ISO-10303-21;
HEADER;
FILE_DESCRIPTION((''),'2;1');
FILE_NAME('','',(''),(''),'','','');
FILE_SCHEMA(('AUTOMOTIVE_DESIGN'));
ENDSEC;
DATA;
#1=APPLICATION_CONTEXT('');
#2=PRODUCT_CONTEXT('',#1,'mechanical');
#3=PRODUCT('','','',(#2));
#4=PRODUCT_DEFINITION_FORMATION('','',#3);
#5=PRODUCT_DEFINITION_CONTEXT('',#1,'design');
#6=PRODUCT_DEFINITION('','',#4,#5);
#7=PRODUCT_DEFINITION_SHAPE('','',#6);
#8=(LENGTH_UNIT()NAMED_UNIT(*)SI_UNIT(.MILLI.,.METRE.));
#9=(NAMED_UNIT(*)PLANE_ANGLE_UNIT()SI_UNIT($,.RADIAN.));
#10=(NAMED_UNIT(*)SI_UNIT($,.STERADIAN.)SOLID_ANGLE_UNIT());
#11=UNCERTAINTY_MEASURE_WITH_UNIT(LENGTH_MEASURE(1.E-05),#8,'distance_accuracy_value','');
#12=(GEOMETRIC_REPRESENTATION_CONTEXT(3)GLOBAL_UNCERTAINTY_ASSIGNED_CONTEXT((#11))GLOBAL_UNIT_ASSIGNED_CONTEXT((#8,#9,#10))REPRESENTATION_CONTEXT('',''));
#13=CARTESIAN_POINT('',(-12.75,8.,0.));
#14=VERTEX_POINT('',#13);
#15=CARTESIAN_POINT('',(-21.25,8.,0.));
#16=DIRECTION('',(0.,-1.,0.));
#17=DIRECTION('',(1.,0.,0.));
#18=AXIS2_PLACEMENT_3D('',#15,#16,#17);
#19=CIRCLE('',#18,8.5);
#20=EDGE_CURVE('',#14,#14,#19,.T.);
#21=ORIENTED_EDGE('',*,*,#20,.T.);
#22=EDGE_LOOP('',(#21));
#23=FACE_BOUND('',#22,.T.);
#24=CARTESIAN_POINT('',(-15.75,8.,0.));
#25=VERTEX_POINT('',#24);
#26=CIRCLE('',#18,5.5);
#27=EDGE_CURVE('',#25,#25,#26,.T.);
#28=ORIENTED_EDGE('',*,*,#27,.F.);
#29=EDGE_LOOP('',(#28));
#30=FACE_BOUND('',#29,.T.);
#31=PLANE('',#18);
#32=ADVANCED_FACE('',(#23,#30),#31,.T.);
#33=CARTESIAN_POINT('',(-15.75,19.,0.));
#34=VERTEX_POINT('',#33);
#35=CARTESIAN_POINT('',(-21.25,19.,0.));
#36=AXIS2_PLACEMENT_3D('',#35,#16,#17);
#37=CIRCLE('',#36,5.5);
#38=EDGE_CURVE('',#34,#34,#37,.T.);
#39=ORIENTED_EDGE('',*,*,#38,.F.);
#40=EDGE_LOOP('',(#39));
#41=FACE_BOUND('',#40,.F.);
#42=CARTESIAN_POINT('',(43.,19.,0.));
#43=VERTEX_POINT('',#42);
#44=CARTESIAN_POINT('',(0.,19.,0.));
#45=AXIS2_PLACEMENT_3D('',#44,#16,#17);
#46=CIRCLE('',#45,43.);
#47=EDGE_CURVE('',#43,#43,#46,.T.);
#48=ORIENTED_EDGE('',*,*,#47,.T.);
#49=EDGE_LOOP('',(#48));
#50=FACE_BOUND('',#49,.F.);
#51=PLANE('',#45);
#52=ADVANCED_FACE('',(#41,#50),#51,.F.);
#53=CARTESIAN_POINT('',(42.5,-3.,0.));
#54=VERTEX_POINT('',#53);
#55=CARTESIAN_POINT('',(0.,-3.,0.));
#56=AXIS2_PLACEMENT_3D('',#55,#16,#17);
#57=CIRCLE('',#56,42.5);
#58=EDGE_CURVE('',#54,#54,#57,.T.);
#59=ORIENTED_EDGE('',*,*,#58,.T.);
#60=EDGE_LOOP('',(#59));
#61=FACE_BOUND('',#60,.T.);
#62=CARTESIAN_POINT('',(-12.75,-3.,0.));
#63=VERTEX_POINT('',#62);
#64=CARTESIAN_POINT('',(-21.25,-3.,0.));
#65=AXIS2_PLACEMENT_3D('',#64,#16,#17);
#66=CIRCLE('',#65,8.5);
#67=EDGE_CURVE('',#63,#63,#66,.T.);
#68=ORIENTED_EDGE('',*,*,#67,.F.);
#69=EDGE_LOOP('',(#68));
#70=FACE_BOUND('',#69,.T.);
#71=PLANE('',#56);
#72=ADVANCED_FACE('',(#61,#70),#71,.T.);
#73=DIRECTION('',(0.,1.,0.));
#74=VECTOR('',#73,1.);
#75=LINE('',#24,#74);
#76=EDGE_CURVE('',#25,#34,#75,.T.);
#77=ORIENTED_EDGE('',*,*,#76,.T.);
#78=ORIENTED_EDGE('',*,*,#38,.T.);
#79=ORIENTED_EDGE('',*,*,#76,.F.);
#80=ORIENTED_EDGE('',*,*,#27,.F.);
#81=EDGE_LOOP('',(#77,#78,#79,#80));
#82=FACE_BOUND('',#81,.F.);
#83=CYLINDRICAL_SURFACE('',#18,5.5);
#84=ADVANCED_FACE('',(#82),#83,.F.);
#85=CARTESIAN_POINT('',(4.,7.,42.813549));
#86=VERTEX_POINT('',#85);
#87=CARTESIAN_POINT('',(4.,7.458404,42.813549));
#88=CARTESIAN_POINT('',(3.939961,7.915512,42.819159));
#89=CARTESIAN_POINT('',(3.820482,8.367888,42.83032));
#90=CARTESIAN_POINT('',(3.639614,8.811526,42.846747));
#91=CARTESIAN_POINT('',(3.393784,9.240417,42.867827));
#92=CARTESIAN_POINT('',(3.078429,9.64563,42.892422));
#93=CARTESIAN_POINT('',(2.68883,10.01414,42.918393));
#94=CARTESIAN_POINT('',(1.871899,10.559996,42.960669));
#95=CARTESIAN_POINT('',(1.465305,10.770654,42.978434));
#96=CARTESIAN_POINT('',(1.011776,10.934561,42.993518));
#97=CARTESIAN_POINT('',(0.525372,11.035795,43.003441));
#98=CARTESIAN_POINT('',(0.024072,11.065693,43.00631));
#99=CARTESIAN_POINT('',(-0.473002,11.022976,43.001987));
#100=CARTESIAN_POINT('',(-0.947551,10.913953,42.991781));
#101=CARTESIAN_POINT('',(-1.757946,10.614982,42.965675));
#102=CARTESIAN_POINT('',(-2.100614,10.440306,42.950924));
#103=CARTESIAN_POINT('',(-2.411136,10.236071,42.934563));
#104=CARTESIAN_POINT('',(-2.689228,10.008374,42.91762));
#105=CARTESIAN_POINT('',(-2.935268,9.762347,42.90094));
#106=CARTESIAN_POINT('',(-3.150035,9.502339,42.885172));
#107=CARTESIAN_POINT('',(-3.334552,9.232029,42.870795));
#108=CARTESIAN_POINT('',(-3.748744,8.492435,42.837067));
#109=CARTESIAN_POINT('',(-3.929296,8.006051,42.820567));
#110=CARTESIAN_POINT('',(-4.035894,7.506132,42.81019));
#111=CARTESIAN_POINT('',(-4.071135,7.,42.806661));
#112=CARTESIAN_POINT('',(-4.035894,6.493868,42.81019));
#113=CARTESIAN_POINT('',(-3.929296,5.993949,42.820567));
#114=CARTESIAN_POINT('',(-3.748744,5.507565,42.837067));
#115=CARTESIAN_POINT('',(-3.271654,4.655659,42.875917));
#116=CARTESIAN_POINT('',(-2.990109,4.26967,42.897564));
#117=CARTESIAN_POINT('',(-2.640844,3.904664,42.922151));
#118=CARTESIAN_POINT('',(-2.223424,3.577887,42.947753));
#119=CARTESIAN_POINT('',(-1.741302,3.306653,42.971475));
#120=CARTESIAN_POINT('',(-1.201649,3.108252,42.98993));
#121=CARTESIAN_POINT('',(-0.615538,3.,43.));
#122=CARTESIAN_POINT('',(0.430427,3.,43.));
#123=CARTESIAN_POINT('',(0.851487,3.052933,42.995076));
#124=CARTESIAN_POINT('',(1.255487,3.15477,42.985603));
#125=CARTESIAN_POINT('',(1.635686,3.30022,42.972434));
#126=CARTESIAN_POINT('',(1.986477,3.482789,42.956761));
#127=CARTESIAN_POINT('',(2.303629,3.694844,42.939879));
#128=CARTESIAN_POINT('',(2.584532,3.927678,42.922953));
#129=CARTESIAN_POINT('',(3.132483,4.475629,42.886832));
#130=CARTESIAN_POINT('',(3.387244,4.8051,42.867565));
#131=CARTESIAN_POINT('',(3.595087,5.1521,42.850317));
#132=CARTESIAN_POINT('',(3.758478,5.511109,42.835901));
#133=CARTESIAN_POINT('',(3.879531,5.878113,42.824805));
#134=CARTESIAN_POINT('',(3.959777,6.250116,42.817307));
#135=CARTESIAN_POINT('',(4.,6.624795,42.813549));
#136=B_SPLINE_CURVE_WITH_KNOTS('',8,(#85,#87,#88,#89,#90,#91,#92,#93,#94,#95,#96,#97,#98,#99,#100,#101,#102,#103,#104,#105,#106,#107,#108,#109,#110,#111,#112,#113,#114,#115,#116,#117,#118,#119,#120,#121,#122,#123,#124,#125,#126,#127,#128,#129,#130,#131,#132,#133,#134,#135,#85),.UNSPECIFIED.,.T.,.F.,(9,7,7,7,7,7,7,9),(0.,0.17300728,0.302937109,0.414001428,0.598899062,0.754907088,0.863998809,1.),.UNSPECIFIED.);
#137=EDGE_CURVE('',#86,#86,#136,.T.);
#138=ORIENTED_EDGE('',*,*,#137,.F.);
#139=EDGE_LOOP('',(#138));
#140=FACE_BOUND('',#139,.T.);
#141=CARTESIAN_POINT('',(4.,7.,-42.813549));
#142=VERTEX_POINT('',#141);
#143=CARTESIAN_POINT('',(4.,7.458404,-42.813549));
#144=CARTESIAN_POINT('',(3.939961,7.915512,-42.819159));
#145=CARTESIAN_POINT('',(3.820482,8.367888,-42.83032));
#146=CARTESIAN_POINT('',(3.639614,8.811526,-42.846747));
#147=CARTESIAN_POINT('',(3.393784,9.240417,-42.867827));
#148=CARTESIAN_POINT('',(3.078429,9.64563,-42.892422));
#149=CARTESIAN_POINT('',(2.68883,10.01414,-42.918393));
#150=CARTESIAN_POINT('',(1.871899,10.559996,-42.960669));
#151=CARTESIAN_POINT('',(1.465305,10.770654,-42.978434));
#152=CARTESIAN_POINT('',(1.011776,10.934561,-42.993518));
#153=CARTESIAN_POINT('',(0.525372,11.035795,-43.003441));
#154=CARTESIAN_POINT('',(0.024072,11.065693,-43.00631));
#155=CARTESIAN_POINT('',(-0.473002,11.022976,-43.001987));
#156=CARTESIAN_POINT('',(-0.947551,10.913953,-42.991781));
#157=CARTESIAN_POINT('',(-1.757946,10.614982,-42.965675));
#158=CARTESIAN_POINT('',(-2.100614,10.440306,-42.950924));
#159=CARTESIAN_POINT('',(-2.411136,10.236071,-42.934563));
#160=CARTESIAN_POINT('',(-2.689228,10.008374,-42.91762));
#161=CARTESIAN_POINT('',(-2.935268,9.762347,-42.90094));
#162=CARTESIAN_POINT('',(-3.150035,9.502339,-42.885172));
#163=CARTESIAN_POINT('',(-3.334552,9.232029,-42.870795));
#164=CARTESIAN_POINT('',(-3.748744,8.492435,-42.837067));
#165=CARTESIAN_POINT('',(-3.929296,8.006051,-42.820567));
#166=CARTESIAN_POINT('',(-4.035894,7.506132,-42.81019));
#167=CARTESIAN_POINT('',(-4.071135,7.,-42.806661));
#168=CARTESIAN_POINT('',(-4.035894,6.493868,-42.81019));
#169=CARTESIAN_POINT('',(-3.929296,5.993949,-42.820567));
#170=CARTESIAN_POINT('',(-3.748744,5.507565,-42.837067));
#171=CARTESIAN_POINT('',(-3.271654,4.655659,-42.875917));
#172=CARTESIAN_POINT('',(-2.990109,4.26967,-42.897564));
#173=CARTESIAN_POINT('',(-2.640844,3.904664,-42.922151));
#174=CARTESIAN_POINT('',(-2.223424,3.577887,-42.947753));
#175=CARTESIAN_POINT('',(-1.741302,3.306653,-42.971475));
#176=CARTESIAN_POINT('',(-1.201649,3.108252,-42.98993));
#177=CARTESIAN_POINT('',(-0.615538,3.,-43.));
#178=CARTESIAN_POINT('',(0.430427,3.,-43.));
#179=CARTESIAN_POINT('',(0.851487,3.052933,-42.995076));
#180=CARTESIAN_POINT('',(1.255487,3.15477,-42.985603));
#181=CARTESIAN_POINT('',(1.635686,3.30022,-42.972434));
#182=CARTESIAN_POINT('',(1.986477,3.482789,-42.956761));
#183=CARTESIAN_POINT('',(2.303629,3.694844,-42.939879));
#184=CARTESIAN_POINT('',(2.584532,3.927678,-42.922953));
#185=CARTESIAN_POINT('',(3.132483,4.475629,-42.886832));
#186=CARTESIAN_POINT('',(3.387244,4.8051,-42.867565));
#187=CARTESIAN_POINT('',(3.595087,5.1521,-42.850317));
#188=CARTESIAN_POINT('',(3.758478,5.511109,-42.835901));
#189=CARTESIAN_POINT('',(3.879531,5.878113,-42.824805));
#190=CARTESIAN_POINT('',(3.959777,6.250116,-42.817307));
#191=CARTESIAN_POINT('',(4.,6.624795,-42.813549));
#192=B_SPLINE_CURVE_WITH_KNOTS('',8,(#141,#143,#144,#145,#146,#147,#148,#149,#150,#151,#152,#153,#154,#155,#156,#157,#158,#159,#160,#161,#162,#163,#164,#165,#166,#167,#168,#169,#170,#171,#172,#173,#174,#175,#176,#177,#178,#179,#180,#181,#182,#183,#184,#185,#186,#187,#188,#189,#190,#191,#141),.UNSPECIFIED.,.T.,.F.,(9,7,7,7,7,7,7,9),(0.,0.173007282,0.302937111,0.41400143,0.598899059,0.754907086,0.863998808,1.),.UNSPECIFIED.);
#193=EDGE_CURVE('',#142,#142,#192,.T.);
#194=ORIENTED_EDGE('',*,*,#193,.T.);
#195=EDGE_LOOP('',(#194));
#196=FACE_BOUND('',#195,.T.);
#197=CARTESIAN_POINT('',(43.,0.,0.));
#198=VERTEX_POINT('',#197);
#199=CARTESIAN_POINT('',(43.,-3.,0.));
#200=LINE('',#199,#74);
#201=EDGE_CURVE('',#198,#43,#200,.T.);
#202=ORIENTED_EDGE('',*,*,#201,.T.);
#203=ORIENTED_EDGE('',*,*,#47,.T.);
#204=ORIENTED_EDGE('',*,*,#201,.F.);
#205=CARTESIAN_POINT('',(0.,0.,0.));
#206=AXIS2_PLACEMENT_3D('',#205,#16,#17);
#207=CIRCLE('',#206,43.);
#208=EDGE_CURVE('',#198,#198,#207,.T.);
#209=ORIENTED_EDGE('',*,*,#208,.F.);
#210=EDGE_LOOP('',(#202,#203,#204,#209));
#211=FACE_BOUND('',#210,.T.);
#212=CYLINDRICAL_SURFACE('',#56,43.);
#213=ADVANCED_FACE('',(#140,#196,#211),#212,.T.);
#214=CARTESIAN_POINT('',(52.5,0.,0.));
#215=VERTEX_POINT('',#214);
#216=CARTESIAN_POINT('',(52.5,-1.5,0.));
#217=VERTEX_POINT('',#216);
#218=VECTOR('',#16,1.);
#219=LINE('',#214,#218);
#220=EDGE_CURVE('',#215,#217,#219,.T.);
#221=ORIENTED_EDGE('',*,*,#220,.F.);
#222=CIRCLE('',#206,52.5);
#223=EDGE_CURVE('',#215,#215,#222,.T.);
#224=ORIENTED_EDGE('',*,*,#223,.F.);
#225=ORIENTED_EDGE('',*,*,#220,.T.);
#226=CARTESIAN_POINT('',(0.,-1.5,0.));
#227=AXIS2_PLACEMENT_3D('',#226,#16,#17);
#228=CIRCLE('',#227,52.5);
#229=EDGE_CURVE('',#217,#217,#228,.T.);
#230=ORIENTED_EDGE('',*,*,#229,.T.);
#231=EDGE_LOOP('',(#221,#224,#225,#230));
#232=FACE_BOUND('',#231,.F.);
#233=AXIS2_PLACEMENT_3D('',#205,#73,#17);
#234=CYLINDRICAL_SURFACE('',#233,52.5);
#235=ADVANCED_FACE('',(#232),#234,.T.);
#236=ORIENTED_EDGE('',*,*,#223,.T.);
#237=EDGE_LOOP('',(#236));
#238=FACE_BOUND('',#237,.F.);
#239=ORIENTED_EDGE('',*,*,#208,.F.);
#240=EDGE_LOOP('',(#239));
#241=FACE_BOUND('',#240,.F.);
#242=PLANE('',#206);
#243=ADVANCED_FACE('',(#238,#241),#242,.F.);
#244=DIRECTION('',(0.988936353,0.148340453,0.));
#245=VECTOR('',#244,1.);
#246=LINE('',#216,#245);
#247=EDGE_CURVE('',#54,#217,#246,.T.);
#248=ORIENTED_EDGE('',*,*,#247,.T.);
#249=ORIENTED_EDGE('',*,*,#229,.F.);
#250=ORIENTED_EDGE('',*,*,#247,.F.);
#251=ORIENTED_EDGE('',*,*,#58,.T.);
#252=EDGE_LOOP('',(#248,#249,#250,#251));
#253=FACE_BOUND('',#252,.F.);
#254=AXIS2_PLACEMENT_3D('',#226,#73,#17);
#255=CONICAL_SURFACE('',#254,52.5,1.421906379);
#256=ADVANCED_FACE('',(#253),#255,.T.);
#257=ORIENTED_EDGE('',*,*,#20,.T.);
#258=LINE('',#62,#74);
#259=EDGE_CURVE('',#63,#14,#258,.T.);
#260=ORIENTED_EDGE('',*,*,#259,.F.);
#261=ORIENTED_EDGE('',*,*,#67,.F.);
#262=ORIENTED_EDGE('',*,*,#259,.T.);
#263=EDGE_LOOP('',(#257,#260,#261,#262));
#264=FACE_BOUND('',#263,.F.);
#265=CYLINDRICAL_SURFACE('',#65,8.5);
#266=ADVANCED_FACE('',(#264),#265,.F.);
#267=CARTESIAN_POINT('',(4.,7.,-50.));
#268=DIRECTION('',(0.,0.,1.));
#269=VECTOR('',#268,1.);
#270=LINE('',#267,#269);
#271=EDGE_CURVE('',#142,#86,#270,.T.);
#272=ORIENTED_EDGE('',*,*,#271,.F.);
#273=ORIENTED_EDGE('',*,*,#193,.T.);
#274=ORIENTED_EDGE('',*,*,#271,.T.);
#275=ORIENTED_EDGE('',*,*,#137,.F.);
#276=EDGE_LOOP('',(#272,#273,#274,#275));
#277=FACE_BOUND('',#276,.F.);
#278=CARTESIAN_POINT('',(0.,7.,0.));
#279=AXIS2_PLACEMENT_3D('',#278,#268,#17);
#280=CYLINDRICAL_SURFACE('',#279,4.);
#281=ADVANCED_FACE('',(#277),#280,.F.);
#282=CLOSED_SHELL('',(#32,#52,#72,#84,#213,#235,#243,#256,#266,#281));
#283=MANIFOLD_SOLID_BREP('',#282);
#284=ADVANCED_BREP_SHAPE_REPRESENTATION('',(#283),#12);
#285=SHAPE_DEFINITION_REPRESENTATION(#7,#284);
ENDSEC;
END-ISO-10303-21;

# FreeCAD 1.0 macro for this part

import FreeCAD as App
import Part
import Sketcher

V = App.Vector


def edges_at(feature, points):
    """Names of the edges that pass closest to the given points."""
    edges = feature.Shape.Edges
    near = lambda p: min(range(len(edges)), key=lambda i: edges[i].distToShape(Part.Vertex(*p))[0])
    return sorted({f"Edge{near(p) + 1}" for p in points})

doc = App.newDocument("Part")
params = doc.addObject("Spreadsheet::Sheet", "Params")
for row, (alias, value) in enumerate([
    ("sketch1_diameter", "105 mm"),
    ("pad1_length", "3 mm"),
    ("sketch2_diameter", "86 mm"),
    ("pad2_length", "22 mm"),
    ("sketch3_diameter", "17 mm"),
    ("pocket1_length", "11 mm"),
    ("sketch4_diameter", "11 mm"),
    ("chamfer_size", "10 mm"),
    ("chamfer_size2", "1.5 mm"),
    ("sketch5_diameter", "8 mm"),
    ("pocket3_length", "100 mm"),
], start=1):
    params.set(f"A{row}", alias)
    params.set(f"B{row}", "=" + value)
    params.setAlias(f"B{row}", alias)

body = doc.addObject("PartDesign::Body", "Body")

sketch1 = body.newObject("Sketcher::SketchObject", "Sketch")
sketch1.AttachmentSupport = (doc.getObject("XZ_Plane"), [""])
sketch1.MapMode = "FlatFace"
sketch1.addGeometry(Part.Circle(V(0, 0, 0), V(0, 0, 1), 52.5), False)
sketch1.addConstraint([
    Sketcher.Constraint("Coincident", 0, 3, -1, 1),
    Sketcher.Constraint("Diameter", 0, 105.0),
])
sketch1.setExpression("Constraints[1]", "Params.sketch1_diameter")
pad1 = body.newObject("PartDesign::Pad", "Pad")
pad1.Profile = sketch1
pad1.setExpression("Length", "Params.pad1_length")

sketch2 = body.newObject("Sketcher::SketchObject", "Sketch001")
sketch2.AttachmentSupport = (doc.getObject("XZ_Plane"), [""])
sketch2.MapMode = "FlatFace"
sketch2.AttachmentOffset = App.Placement(V(0, 0, 3), App.Rotation())
sketch2.addGeometry(Part.Circle(V(0, 0, 0), V(0, 0, 1), 43), False)
sketch2.addConstraint([
    Sketcher.Constraint("Coincident", 0, 3, -1, 1),
    Sketcher.Constraint("Diameter", 0, 86.0),
])
sketch2.setExpression("Constraints[1]", "Params.sketch2_diameter")
pad2 = body.newObject("PartDesign::Pad", "Pad001")
pad2.Profile = sketch2
pad2.setExpression("Length", "Params.pad2_length")
pad2.Reversed = True

sketch3 = body.newObject("Sketcher::SketchObject", "Sketch002")
sketch3.AttachmentSupport = (doc.getObject("XZ_Plane"), [""])
sketch3.MapMode = "FlatFace"
sketch3.AttachmentOffset = App.Placement(V(0, 0, 3), App.Rotation())
sketch3.addGeometry(Part.Circle(V(-21.25, 0, 0), V(0, 0, 1), 8.5), False)
sketch3.addConstraint([
    Sketcher.Constraint("PointOnObject", 0, 3, -1),
    Sketcher.Constraint("Diameter", 0, 17.0),
    Sketcher.Constraint("DistanceX", 0, 3, -1, 1, 21.25),
])
sketch3.setExpression("Constraints[1]", "Params.sketch3_diameter")
pocket1 = body.newObject("PartDesign::Pocket", "Pocket")
pocket1.Profile = sketch3
pocket1.setExpression("Length", "Params.pocket1_length")

sketch4 = body.newObject("Sketcher::SketchObject", "Sketch003")
sketch4.AttachmentSupport = (doc.getObject("XZ_Plane"), [""])
sketch4.MapMode = "FlatFace"
sketch4.AttachmentOffset = App.Placement(V(0, 0, -8), App.Rotation())
sketch4.addGeometry(Part.Circle(V(-21.25, 0, 0), V(0, 0, 1), 5.5), False)
sketch4.addConstraint([
    Sketcher.Constraint("PointOnObject", 0, 3, -1),
    Sketcher.Constraint("Diameter", 0, 11.0),
    Sketcher.Constraint("DistanceX", 0, 3, -1, 1, 21.25),
])
sketch4.setExpression("Constraints[1]", "Params.sketch4_diameter")
pocket2 = body.newObject("PartDesign::Pocket", "Pocket001")
pocket2.Profile = sketch4
pocket2.Type = "ThroughAll"
doc.recompute()

chamfer = body.newObject("PartDesign::Chamfer", "Chamfer")
chamfer.Base = (pocket2, edges_at(pocket2, [(-52.5, -3, 0)]))
chamfer.ChamferType = "Two distances"
chamfer.setExpression("Size", "Params.chamfer_size")
chamfer.setExpression("Size2", "Params.chamfer_size2")
chamfer.FlipDirection = True

sketch5 = body.newObject("Sketcher::SketchObject", "Sketch004")
sketch5.AttachmentSupport = (doc.getObject("XY_Plane"), [""])
sketch5.MapMode = "FlatFace"
sketch5.addGeometry(Part.Circle(V(0, 7, 0), V(0, 0, 1), 4), False)
sketch5.addConstraint([
    Sketcher.Constraint("PointOnObject", 0, 3, -2),
    Sketcher.Constraint("Diameter", 0, 8.0),
    Sketcher.Constraint("DistanceY", -1, 1, 0, 3, 7.0),
])
sketch5.setExpression("Constraints[1]", "Params.sketch5_diameter")
pocket3 = body.newObject("PartDesign::Pocket", "Pocket002")
pocket3.Profile = sketch5
pocket3.setExpression("Length", "Params.pocket3_length")
pocket3.Midplane = True

doc.recompute()
